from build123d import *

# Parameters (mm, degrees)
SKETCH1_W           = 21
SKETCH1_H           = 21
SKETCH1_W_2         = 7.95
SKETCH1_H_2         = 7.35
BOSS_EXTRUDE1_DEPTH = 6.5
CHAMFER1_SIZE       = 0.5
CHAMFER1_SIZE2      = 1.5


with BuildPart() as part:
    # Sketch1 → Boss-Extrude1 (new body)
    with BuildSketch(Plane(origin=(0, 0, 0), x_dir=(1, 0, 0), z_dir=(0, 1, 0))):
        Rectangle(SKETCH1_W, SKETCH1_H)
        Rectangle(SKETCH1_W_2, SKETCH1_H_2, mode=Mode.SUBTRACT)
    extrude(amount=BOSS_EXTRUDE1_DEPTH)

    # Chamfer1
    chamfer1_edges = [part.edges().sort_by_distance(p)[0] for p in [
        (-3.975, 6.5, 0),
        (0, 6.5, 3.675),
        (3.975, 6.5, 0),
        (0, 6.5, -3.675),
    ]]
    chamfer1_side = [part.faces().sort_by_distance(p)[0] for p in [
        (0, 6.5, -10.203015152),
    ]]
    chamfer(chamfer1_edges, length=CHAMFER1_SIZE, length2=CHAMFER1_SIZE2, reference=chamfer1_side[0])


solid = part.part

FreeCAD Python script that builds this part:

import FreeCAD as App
import Part
import Sketcher
from FreeCAD import Vector
Q = App.Units.Quantity


def edges_at(feature, points):
    """Names of the edges that pass closest to the given points."""
    edges = feature.Shape.Edges
    near = lambda p: min(range(len(edges)), key=lambda i: edges[i].distToShape(Part.Vertex(*p))[0])
    return sorted({f"Edge{near(p) + 1}" for p in points})


def add_polygon(sketch, points):
    """Adds a closed chain of lines whose ends are joined by coincident constraints."""
    first, n = sketch.GeometryCount, len(points)
    for a, b in zip(points, points[1:] + points[:1]):
        sketch.addGeometry(Part.LineSegment(App.Vector(*a, 0), App.Vector(*b, 0)), False)
    for i in range(n):
        sketch.addConstraint(Sketcher.Constraint("Coincident", first + i, 2, first + (i + 1) % n, 1))

doc = App.newDocument("Part")
body = doc.addObject("PartDesign::Body", "Body")

# Sketch on XZ plane
sketch1 = body.newObject("Sketcher::SketchObject", "Sketch")
sketch1.AttachmentSupport = (doc.getObject("XZ_Plane"), [""])
sketch1.MapMode = "FlatFace"
add_polygon(sketch1, [(-10, -10), (-10, 10), (10, 10), (10, -10)])  # lines 0-3
add_polygon(sketch1, [(4, 4), (-4, 4), (-4, -4), (4, -4)])  # lines 4-7
sketch1.addConstraint([
    Sketcher.Constraint("Vertical", 0),
    Sketcher.Constraint("Horizontal", 1),
    Sketcher.Constraint("Vertical", 2),
    Sketcher.Constraint("Horizontal", 3),
    Sketcher.Constraint("Horizontal", 4),
    Sketcher.Constraint("Vertical", 5),
    Sketcher.Constraint("Horizontal", 6),
    Sketcher.Constraint("Vertical", 7),
    Sketcher.Constraint("Symmetric", 0, 2, 2, 2, -1, 1),
    Sketcher.Constraint("Symmetric", 4, 2, 6, 2, -1, 1),
    Sketcher.Constraint("Equal", 3, 0),
    Sketcher.Constraint("DistanceX", 1, 1, 1, 2, Q("21 mm")),
    Sketcher.Constraint("DistanceX", 4, 2, 4, 1, Q("7.95 mm")),
    Sketcher.Constraint("DistanceY", 5, 2, 5, 1, Q("7.35 mm")),
])
pad1 = body.newObject("PartDesign::Pad", "Pad")
pad1.Profile = sketch1
pad1.Length = 6.5
pad1.Reversed = True
doc.recompute()

chamfer = body.newObject("PartDesign::Chamfer", "Chamfer")
chamfer.Base = (pad1, edges_at(pad1, [
    (-3.975, 6.5, 0),
    (0, 6.5, 3.675),
    (3.975, 6.5, 0),
    (0, 6.5, -3.675),
]))
chamfer.ChamferType = "Two distances"
chamfer.Size = 0.5
chamfer.Size2 = 1.5
chamfer.FlipDirection = True

doc.recompute()
